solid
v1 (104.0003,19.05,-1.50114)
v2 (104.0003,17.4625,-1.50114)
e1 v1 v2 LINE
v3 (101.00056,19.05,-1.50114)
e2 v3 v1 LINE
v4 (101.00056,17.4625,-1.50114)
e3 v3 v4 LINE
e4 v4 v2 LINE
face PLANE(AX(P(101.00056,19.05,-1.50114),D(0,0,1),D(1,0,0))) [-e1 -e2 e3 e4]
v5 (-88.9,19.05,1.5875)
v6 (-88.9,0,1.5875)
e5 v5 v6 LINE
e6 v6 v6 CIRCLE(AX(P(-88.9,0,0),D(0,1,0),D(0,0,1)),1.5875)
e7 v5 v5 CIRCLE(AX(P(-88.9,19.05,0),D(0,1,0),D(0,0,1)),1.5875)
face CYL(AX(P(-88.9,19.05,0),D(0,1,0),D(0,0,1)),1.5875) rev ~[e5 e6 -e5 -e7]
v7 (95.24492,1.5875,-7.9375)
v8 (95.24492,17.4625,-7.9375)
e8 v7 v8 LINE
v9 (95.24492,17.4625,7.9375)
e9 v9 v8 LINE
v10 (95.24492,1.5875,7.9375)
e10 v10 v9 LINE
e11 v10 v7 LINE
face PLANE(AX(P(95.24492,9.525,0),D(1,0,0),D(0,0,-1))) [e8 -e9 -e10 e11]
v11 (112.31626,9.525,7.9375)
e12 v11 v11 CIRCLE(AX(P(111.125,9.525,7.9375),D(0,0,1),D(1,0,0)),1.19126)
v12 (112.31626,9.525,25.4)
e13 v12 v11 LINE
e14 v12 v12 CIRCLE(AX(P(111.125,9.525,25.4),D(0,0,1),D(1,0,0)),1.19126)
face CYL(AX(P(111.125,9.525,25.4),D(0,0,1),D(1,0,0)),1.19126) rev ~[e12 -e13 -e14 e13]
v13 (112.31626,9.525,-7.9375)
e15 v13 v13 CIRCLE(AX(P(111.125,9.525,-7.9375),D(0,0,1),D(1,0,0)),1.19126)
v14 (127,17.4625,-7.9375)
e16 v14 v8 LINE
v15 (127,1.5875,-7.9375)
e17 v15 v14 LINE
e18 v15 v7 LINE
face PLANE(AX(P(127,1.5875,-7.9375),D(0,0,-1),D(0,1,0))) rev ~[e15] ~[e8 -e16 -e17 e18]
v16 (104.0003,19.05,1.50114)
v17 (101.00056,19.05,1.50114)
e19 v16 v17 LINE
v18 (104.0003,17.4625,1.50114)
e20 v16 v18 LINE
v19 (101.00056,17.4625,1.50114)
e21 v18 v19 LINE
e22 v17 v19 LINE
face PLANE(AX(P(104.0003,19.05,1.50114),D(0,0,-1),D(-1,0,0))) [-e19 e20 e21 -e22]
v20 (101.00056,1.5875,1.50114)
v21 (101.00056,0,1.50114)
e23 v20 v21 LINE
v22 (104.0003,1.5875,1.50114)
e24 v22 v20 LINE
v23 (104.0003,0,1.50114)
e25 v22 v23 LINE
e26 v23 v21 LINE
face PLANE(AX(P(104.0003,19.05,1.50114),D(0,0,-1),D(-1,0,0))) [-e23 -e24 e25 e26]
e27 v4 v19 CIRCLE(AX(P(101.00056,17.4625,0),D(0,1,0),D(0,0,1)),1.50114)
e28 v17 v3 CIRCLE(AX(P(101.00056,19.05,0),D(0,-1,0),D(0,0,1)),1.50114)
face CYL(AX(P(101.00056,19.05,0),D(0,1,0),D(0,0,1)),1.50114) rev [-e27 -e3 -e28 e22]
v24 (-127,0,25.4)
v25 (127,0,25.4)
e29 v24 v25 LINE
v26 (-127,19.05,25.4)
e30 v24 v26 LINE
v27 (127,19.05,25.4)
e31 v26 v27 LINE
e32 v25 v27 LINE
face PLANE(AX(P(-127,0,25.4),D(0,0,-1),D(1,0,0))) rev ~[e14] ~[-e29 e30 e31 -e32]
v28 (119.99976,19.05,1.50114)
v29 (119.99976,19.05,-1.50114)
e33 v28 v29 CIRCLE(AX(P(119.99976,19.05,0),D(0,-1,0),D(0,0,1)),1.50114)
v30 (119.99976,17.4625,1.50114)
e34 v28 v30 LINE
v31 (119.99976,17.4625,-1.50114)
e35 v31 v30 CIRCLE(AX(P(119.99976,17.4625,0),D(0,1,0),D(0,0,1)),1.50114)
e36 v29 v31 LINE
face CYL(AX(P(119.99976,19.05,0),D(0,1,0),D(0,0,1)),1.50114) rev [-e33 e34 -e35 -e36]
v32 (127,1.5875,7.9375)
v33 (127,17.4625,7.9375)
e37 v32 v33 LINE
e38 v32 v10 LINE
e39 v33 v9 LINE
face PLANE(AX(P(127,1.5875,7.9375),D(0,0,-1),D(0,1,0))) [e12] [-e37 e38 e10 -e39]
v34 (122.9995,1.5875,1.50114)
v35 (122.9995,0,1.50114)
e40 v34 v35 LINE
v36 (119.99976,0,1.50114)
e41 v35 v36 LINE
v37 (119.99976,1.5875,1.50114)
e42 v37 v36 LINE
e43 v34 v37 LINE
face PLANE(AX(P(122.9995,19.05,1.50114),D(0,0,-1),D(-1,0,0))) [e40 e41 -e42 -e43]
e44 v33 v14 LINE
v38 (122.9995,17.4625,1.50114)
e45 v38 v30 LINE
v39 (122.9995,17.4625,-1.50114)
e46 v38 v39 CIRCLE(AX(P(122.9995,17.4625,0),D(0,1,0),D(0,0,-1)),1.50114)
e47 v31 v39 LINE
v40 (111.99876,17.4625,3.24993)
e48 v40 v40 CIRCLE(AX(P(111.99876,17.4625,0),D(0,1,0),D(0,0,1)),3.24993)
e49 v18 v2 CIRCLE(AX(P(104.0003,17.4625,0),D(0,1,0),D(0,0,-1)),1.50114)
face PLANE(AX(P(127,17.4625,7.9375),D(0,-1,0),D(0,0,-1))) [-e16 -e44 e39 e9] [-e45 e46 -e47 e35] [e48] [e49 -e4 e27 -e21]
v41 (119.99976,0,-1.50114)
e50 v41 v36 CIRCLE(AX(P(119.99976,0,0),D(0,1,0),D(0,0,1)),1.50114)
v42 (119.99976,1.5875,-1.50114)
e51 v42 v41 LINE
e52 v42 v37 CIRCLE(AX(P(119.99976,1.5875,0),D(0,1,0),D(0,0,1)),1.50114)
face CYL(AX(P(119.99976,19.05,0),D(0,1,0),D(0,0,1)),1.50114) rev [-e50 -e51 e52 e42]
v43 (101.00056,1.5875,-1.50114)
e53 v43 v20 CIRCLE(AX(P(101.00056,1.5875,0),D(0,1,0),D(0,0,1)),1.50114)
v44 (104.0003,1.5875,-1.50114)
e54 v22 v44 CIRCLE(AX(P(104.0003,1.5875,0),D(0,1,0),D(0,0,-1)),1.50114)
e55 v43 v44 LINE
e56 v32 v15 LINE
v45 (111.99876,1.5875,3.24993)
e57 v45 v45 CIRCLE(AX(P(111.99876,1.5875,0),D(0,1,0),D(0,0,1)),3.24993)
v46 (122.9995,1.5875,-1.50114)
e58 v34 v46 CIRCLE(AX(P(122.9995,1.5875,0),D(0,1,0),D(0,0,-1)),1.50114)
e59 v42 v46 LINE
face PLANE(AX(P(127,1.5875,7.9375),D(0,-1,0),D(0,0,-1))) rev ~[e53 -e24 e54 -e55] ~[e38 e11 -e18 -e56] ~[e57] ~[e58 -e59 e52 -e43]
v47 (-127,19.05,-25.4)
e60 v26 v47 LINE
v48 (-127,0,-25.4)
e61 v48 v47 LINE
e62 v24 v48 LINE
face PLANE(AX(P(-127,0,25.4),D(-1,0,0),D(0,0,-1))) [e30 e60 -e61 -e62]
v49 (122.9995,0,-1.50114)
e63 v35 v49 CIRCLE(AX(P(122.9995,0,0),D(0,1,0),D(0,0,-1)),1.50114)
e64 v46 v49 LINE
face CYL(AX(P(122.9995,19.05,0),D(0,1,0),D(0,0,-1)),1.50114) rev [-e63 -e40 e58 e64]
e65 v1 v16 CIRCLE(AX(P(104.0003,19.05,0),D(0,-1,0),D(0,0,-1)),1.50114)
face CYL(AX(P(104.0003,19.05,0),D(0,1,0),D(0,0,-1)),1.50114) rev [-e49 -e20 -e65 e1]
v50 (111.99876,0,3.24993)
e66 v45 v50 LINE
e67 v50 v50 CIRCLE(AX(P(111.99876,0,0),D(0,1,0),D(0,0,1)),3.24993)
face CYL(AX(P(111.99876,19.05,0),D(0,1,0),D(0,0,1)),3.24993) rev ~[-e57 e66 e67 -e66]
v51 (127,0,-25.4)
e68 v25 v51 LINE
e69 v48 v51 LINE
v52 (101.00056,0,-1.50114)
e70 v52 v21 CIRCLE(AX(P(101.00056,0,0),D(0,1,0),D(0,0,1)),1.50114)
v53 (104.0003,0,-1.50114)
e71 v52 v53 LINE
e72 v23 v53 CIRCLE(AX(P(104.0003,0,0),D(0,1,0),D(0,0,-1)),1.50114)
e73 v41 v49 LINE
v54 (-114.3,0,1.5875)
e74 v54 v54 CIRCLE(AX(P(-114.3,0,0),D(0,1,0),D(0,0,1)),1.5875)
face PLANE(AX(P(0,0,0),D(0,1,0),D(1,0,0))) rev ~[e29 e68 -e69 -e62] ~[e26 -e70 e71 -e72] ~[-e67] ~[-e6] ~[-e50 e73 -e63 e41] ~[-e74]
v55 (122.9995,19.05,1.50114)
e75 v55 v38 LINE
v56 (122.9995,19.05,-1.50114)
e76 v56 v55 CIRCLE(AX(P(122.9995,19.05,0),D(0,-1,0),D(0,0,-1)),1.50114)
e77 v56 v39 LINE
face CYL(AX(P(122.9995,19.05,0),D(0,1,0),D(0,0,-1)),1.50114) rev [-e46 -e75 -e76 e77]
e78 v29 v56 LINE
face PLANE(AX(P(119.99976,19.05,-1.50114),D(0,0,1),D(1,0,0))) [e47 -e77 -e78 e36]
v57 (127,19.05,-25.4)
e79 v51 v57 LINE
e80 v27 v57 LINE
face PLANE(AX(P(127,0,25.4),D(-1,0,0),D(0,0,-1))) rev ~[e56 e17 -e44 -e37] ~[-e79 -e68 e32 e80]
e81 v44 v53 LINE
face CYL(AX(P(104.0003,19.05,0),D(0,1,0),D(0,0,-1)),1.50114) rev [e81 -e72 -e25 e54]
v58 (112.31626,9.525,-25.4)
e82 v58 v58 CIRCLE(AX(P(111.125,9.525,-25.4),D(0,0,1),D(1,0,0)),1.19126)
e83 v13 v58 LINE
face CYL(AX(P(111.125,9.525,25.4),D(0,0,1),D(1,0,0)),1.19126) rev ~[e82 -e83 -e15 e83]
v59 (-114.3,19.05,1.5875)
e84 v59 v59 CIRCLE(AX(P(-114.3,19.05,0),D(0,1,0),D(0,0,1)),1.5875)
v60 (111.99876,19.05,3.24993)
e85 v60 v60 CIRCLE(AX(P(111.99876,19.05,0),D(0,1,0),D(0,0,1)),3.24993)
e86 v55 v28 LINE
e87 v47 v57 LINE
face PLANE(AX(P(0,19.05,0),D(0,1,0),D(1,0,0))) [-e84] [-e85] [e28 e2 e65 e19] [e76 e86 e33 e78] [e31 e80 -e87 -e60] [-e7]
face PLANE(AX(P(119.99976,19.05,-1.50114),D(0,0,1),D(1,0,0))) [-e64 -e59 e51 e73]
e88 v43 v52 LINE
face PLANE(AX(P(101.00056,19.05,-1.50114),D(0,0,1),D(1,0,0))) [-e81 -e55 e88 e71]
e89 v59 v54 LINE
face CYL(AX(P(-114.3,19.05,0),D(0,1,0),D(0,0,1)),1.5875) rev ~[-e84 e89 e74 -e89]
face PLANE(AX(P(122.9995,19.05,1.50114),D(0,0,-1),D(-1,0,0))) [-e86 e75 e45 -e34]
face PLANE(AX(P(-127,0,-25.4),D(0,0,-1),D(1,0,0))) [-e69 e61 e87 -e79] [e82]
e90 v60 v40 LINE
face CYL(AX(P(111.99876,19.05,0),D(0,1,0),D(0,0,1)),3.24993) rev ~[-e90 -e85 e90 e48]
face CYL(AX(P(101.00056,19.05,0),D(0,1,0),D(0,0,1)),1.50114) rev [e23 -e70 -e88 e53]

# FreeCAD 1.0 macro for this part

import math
import FreeCAD as App
import Part
import Sketcher
from FreeCAD import Vector
Q = App.Units.Quantity

doc = App.newDocument("Part")
params = doc.addObject("Spreadsheet::Sheet", "Params")
for row, (alias, value) in enumerate([
    ("sketch1_width", "10 in"),
    ("sketch1_height", "2 in"),
    ("pad1_length", "0.75 in"),
    ("sketch2_diameter", "0.125 in"),
    ("sketch4_width", "0.625 in"),
    ("pocket3_length", "1.2502 in"),
], start=1):
    params.set(f"A{row}", alias)
    params.set(f"B{row}", "=" + value)
    params.setAlias(f"B{row}", alias)

body = doc.addObject("PartDesign::Body", "Body")

# Sketch on XZ plane
sketch1 = body.newObject("Sketcher::SketchObject", "Sketch")
sketch1.AttachmentSupport = (doc.getObject("XZ_Plane"), [""])
sketch1.MapMode = "FlatFace"
sketch1.addGeometry(Part.LineSegment(Vector(-127, -25, 0), Vector(-127, 25, 0)), False)
sketch1.addGeometry(Part.LineSegment(Vector(-127, 25, 0), Vector(127, 25, 0)), False)
sketch1.addGeometry(Part.LineSegment(Vector(127, 25, 0), Vector(127, -25, 0)), False)
sketch1.addGeometry(Part.LineSegment(Vector(127, -25, 0), Vector(-127, -25, 0)), False)
sketch1.addConstraint(Sketcher.Constraint("Coincident", 0, 2, 1, 1))
sketch1.addConstraint(Sketcher.Constraint("Coincident", 1, 2, 2, 1))
sketch1.addConstraint(Sketcher.Constraint("Coincident", 2, 2, 3, 1))
sketch1.addConstraint(Sketcher.Constraint("Coincident", 3, 2, 0, 1))
sketch1.addConstraint(Sketcher.Constraint("Vertical", 0))
sketch1.addConstraint(Sketcher.Constraint("Horizontal", 1))
sketch1.addConstraint(Sketcher.Constraint("Vertical", 2))
sketch1.addConstraint(Sketcher.Constraint("Horizontal", 3))
sketch1.addConstraint(Sketcher.Constraint("Symmetric", 0, 2, 2, 2, -1, 1))
sketch1.addConstraint(Sketcher.Constraint("DistanceX", 1, 1, 1, 2, Q("10 in")))
sketch1.addConstraint(Sketcher.Constraint("DistanceY", 0, 1, 0, 2, Q("2 in")))
sketch1.setExpression("Constraints[9]", "Params.sketch1_width")
sketch1.setExpression("Constraints[10]", "Params.sketch1_height")
pad1 = body.newObject("PartDesign::Pad", "Pad")
pad1.Profile = sketch1
pad1.setExpression("Length", "Params.pad1_length")
pad1.Reversed = True

# Sketch on XZ plane
sketch2 = body.newObject("Sketcher::SketchObject", "Sketch001")
sketch2.AttachmentSupport = (doc.getObject("XZ_Plane"), [""])
sketch2.MapMode = "FlatFace"
sketch2.AttachmentOffset = App.Placement(Vector(0, 0, -0.75 * 25.4), App.Rotation())
sketch2.addGeometry(Part.Circle(Vector(-114.3, 0, 0), Vector(0, 0, 1), 1.6), False)
sketch2.addGeometry(Part.Circle(Vector(-88.9, 0, 0), Vector(0, 0, 1), 1.6), False)
sketch2.addGeometry(Part.Circle(Vector(112, 0, 0), Vector(0, 0, 1), 3.2), False)
sketch2.addGeometry(Part.LineSegment(Vector(120, 1.5, 0), Vector(123, 1.5, 0)), False)
sketch2.addGeometry(Part.ArcOfCircle(Part.Circle(Vector(123, 0, 0), Vector(0, 0, 1), 1.5), math.radians(-90), math.radians(90)), False)
sketch2.addGeometry(Part.LineSegment(Vector(123, -1.5, 0), Vector(120, -1.5, 0)), False)
sketch2.addGeometry(Part.ArcOfCircle(Part.Circle(Vector(120, 0, 0), Vector(0, 0, 1), 1.5), math.radians(90), math.radians(270)), False)
sketch2.addGeometry(Part.LineSegment(Vector(101, 1.5, 0), Vector(104, 1.5, 0)), False)
sketch2.addGeometry(Part.ArcOfCircle(Part.Circle(Vector(104, 0, 0), Vector(0, 0, 1), 1.5), math.radians(-90), math.radians(90)), False)
sketch2.addGeometry(Part.LineSegment(Vector(104, -1.5, 0), Vector(101, -1.5, 0)), False)
sketch2.addGeometry(Part.ArcOfCircle(Part.Circle(Vector(101, 0, 0), Vector(0, 0, 1), 1.5), math.radians(90), math.radians(270)), False)
sketch2.addConstraint(Sketcher.Constraint("Tangent", 3, 2, 4, 2))
sketch2.addConstraint(Sketcher.Constraint("Tangent", 4, 1, 5, 1))
sketch2.addConstraint(Sketcher.Constraint("Tangent", 5, 2, 6, 2))
sketch2.addConstraint(Sketcher.Constraint("Tangent", 6, 1, 3, 1))
sketch2.addConstraint(Sketcher.Constraint("Tangent", 7, 2, 8, 2))
sketch2.addConstraint(Sketcher.Constraint("Tangent", 8, 1, 9, 1))
sketch2.addConstraint(Sketcher.Constraint("Tangent", 9, 2, 10, 2))
sketch2.addConstraint(Sketcher.Constraint("Tangent", 10, 1, 7, 1))
sketch2.addConstraint(Sketcher.Constraint("Horizontal", 3))
sketch2.addConstraint(Sketcher.Constraint("Horizontal", 5))
sketch2.addConstraint(Sketcher.Constraint("Horizontal", 7))
sketch2.addConstraint(Sketcher.Constraint("Horizontal", 9))
sketch2.addConstraint(Sketcher.Constraint("Equal", 0, 1))
sketch2.addConstraint(Sketcher.Constraint("Equal", 6, 8))
sketch2.addConstraint(Sketcher.Constraint("PointOnObject", 0, 3, -1))
sketch2.addConstraint(Sketcher.Constraint("PointOnObject", 1, 3, -1))
sketch2.addConstraint(Sketcher.Constraint("PointOnObject", 2, 3, -1))
sketch2.addConstraint(Sketcher.Constraint("PointOnObject", 4, 3, -1))
sketch2.addConstraint(Sketcher.Constraint("PointOnObject", 8, 3, -1))
sketch2.addConstraint(Sketcher.Constraint("Equal", 5, 7))
sketch2.addConstraint(Sketcher.Constraint("Diameter", 0, Q("0.125 in")))
sketch2.addConstraint(Sketcher.Constraint("DistanceX", 0, 3, 1, 3, Q("1 in")))
sketch2.addConstraint(Sketcher.Constraint("Diameter", 2, Q("0.2559 in")))
sketch2.addConstraint(Sketcher.Constraint("DistanceX", 0, 3, -1, 1, Q("4.5 in")))
sketch2.addConstraint(Sketcher.Constraint("Radius", 4, Q("0.0591 in")))
sketch2.addConstraint(Sketcher.Constraint("DistanceX", 3, 1, 3, 2, Q("0.1181 in")))
sketch2.addConstraint(Sketcher.Constraint("DistanceX", 2, 3, 6, 3, Q("0.315 in")))
sketch2.addConstraint(Sketcher.Constraint("DistanceX", 8, 3, 4, 3, Q("0.748 in")))
sketch2.addConstraint(Sketcher.Constraint("DistanceX", -1, 1, 2, 3, Q("4.4094 in")))
sketch2.setExpression("Constraints[20]", "Params.sketch2_diameter")
pocket1 = body.newObject("PartDesign::Pocket", "Pocket")
pocket1.Profile = sketch2
pocket1.Type = "ThroughAll"
pocket1.Reversed = True

# Sketch on XY plane
sketch3 = body.newObject("Sketcher::SketchObject", "Sketch002")
sketch3.AttachmentSupport = (doc.getObject("XY_Plane"), [""])
sketch3.MapMode = "FlatFace"
sketch3.AttachmentOffset = App.Placement(Vector(0, 0, 1 * 25.4), App.Rotation())
sketch3.addGeometry(Part.Circle(Vector(111.1, 9.5, 0), Vector(0, 0, 1), 1.2), False)
sketch3.addConstraint(Sketcher.Constraint("Diameter", 0, Q("0.0938 in")))
sketch3.addConstraint(Sketcher.Constraint("DistanceX", -1, 1, 0, 3, Q("4.375 in")))
sketch3.addConstraint(Sketcher.Constraint("DistanceY", -1, 1, 0, 3, Q("0.375 in")))
pocket2 = body.newObject("PartDesign::Pocket", "Pocket001")
pocket2.Profile = sketch3
pocket2.Type = "ThroughAll"

# Sketch on YZ plane
sketch4 = body.newObject("Sketcher::SketchObject", "Sketch003")
sketch4.AttachmentSupport = (doc.getObject("YZ_Plane"), [""])
sketch4.MapMode = "FlatFace"
sketch4.AttachmentOffset = App.Placement(Vector(0, 0, 5 * 25.4), App.Rotation())
sketch4.addGeometry(Part.LineSegment(Vector(17, 8, 0), Vector(2, 8, 0)), False)
sketch4.addGeometry(Part.LineSegment(Vector(2, 8, 0), Vector(2, -8, 0)), False)
sketch4.addGeometry(Part.LineSegment(Vector(2, -8, 0), Vector(17, -8, 0)), False)
sketch4.addGeometry(Part.LineSegment(Vector(17, -8, 0), Vector(17, 8, 0)), False)
sketch4.addConstraint(Sketcher.Constraint("Coincident", 0, 2, 1, 1))
sketch4.addConstraint(Sketcher.Constraint("Coincident", 1, 2, 2, 1))
sketch4.addConstraint(Sketcher.Constraint("Coincident", 2, 2, 3, 1))
sketch4.addConstraint(Sketcher.Constraint("Coincident", 3, 2, 0, 1))
sketch4.addConstraint(Sketcher.Constraint("Horizontal", 0))
sketch4.addConstraint(Sketcher.Constraint("Vertical", 1))
sketch4.addConstraint(Sketcher.Constraint("Horizontal", 2))
sketch4.addConstraint(Sketcher.Constraint("Vertical", 3))
sketch4.addConstraint(Sketcher.Constraint("Equal", 2, 1))
sketch4.addConstraint(Sketcher.Constraint("DistanceX", 0, 2, 0, 1, Q("0.625 in")))
sketch4.addConstraint(Sketcher.Constraint("DistanceX", -1, 1, 0, 2, Q("0.0625 in")))
sketch4.addConstraint(Sketcher.Constraint("DistanceY", -1, 1, 0, 2, Q("0.3125 in")))
sketch4.setExpression("Constraints[9]", "Params.sketch4_width")
pocket3 = body.newObject("PartDesign::Pocket", "Pocket002")
pocket3.Profile = sketch4
pocket3.setExpression("Length", "Params.pocket3_length")

doc.recompute()
